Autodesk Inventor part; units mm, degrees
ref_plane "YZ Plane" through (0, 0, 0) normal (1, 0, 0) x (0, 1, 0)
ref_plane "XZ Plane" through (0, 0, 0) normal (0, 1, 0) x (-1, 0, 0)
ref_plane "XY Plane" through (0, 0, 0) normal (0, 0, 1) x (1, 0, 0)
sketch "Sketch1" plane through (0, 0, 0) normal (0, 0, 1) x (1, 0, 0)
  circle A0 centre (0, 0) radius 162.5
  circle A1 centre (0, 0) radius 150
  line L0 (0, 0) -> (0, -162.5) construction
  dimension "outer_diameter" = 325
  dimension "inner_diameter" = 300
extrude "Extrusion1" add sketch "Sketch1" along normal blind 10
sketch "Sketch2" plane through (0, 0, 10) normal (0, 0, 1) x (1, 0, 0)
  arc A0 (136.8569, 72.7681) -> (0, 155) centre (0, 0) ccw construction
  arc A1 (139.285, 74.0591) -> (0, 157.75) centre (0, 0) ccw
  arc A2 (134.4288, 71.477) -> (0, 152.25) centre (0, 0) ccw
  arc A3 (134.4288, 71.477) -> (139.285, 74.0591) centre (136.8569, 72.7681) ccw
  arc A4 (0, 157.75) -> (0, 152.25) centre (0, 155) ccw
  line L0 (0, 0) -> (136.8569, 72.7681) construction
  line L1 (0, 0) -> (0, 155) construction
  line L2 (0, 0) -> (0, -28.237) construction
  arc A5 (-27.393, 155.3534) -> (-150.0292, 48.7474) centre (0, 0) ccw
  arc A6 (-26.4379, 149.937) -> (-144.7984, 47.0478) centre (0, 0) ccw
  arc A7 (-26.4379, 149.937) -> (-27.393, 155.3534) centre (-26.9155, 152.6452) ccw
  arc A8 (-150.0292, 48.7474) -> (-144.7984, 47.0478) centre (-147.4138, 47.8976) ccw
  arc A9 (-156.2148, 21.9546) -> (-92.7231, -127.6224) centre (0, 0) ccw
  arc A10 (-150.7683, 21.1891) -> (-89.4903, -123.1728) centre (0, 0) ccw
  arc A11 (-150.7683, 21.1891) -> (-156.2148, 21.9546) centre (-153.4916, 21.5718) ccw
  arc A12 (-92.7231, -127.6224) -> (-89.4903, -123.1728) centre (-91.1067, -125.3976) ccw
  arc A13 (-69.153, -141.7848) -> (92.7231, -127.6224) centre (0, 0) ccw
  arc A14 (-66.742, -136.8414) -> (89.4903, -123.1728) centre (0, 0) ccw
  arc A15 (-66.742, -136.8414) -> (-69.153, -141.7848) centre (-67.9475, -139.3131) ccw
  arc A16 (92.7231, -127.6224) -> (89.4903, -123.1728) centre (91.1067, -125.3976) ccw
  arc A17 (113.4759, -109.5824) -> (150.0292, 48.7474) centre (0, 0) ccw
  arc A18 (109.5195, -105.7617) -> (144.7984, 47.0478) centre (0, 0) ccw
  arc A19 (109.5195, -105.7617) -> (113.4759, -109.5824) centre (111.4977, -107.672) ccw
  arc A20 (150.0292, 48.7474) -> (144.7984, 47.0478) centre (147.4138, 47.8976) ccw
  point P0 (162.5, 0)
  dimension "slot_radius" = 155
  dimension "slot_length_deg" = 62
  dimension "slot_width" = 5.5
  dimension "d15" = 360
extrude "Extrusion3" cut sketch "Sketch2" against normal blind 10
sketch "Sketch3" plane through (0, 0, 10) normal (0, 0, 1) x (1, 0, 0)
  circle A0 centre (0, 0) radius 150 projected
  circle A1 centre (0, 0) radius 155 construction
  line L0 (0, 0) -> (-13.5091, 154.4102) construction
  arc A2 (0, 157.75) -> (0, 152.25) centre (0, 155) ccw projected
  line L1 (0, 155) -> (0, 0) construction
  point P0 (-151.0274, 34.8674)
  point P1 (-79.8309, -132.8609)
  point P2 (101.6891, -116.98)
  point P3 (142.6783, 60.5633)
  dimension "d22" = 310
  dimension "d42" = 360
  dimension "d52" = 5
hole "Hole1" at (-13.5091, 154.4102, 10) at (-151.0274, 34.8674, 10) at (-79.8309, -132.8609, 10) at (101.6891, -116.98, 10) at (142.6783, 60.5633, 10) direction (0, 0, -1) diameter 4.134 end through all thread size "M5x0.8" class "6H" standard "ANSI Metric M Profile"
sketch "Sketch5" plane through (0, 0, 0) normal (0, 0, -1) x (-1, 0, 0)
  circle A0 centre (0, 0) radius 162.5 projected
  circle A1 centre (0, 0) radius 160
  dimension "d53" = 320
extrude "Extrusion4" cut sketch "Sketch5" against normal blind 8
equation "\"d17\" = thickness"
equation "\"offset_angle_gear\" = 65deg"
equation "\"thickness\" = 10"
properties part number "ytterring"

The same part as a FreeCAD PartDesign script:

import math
import FreeCAD as App
import Part
import Sketcher

doc = App.newDocument("Part")
body = doc.addObject("PartDesign::Body", "Body")

sketch1 = doc.addObject("Sketcher::SketchObject", "Sketch")
body.addObject(sketch1)
sketch1.AttachmentSupport = (doc.XY_Plane, [""])
sketch1.MapMode = "FlatFace"
sketch1.addGeometry([
    Part.Circle(App.Vector(0, 0, 0), App.Vector(0, 0, 1), 162),
    Part.Circle(App.Vector(0, 0, 0), App.Vector(0, 0, 1), 150),
], False)
sketch1.addConstraint([
    Sketcher.Constraint("Coincident", 0, 3, -1, 1),
    Sketcher.Constraint("Coincident", 1, 3, -1, 1),
    Sketcher.Constraint("Diameter", 0, 325.0),
    Sketcher.Constraint("Diameter", 1, 300.0),
])
pad1 = doc.addObject("PartDesign::Pad", "Pad")
body.addObject(pad1)
pad1.Profile = sketch1
pad1.Length = 10

sketch2 = doc.addObject("Sketcher::SketchObject", "Sketch001")
body.addObject(sketch2)
sketch2.AttachmentSupport = (doc.XY_Plane, [""])
sketch2.MapMode = "FlatFace"
sketch2.AttachmentOffset = App.Placement(App.Vector(0, 0, 10), App.Rotation())
sketch2.addGeometry([
    Part.ArcOfCircle(Part.Circle(App.Vector(136.9, 72.8, 0), App.Vector(0, 0, 1), 2.8), math.radians(-152), math.radians(28)),
    Part.ArcOfCircle(Part.Circle(App.Vector(0, 0, 0), App.Vector(0, 0, 1), 157.8), math.radians(28), math.radians(90)),
    Part.ArcOfCircle(Part.Circle(App.Vector(0, 155, 0), App.Vector(0, 0, 1), 2.8), math.radians(90), math.radians(270)),
    Part.ArcOfCircle(Part.Circle(App.Vector(0, 0, 0), App.Vector(0, 0, 1), 152.2), math.radians(28), math.radians(90)),
    Part.ArcOfCircle(Part.Circle(App.Vector(-26.9, 152.6, 0), App.Vector(0, 0, 1), 2.7), math.radians(-80), math.radians(100)),
    Part.ArcOfCircle(Part.Circle(App.Vector(0, 0, 0), App.Vector(0, 0, 1), 157.8), math.radians(100), math.radians(162)),
    Part.ArcOfCircle(Part.Circle(App.Vector(-147.4, 47.9, 0), App.Vector(0, 0, 1), 2.7), math.radians(162), math.radians(342)),
    Part.ArcOfCircle(Part.Circle(App.Vector(0, 0, 0), App.Vector(0, 0, 1), 152.3), math.radians(100), math.radians(162)),
    Part.ArcOfCircle(Part.Circle(App.Vector(-153.5, 21.6, 0), App.Vector(0, 0, 1), 2.8), math.radians(-8), math.radians(172)),
    Part.ArcOfCircle(Part.Circle(App.Vector(0, 0, 0), App.Vector(0, 0, 1), 157.7), math.radians(172), math.radians(234)),
    Part.ArcOfCircle(Part.Circle(App.Vector(-91.1, -125.4, 0), App.Vector(0, 0, 1), 2.7), math.radians(-126), math.radians(54)),
    Part.ArcOfCircle(Part.Circle(App.Vector(0, 0, 0), App.Vector(0, 0, 1), 152.2), math.radians(172), math.radians(234)),
    Part.ArcOfCircle(Part.Circle(App.Vector(-67.9, -139.3, 0), App.Vector(0, 0, 1), 2.8), math.radians(64), math.radians(244)),
    Part.ArcOfCircle(Part.Circle(App.Vector(0, 0, 0), App.Vector(0, 0, 1), 157.7), math.radians(-116), math.radians(-54)),
    Part.ArcOfCircle(Part.Circle(App.Vector(91.1, -125.4, 0), App.Vector(0, 0, 1), 2.7), math.radians(-54), math.radians(126)),
    Part.ArcOfCircle(Part.Circle(App.Vector(0, 0, 0), App.Vector(0, 0, 1), 152.2), math.radians(-116), math.radians(-54)),
    Part.ArcOfCircle(Part.Circle(App.Vector(111.5, -107.7, 0), App.Vector(0, 0, 1), 2.8), math.radians(136), math.radians(316)),
    Part.ArcOfCircle(Part.Circle(App.Vector(0, 0, 0), App.Vector(0, 0, 1), 157.7), math.radians(-44), math.radians(18)),
    Part.ArcOfCircle(Part.Circle(App.Vector(147.4, 47.9, 0), App.Vector(0, 0, 1), 2.7), math.radians(18), math.radians(198)),
    Part.ArcOfCircle(Part.Circle(App.Vector(0, 0, 0), App.Vector(0, 0, 1), 152.3), math.radians(-44), math.radians(18)),
], False)
sketch2.addConstraint([
    Sketcher.Constraint("Tangent", 0, 2, 1, 1),
    Sketcher.Constraint("Tangent", 1, 2, 2, 1),
    Sketcher.Constraint("Tangent", 2, 2, 3, 2),
    Sketcher.Constraint("Tangent", 3, 1, 0, 1),
    Sketcher.Constraint("Tangent", 4, 2, 5, 1),
    Sketcher.Constraint("Tangent", 5, 2, 6, 1),
    Sketcher.Constraint("Tangent", 6, 2, 7, 2),
    Sketcher.Constraint("Tangent", 7, 1, 4, 1),
    Sketcher.Constraint("Tangent", 8, 2, 9, 1),
    Sketcher.Constraint("Tangent", 9, 2, 10, 1),
    Sketcher.Constraint("Tangent", 10, 2, 11, 2),
    Sketcher.Constraint("Tangent", 11, 1, 8, 1),
    Sketcher.Constraint("Tangent", 12, 2, 13, 1),
    Sketcher.Constraint("Tangent", 13, 2, 14, 1),
    Sketcher.Constraint("Tangent", 14, 2, 15, 2),
    Sketcher.Constraint("Tangent", 15, 1, 12, 1),
    Sketcher.Constraint("Tangent", 16, 2, 17, 1),
    Sketcher.Constraint("Tangent", 17, 2, 18, 1),
    Sketcher.Constraint("Tangent", 18, 2, 19, 2),
    Sketcher.Constraint("Tangent", 19, 1, 16, 1),
    Sketcher.Constraint("Coincident", 1, 3, -1, 1),
    Sketcher.Constraint("Coincident", 3, 3, -1, 1),
    Sketcher.Constraint("Coincident", 5, 3, -1, 1),
    Sketcher.Constraint("Coincident", 7, 3, -1, 1),
    Sketcher.Constraint("Coincident", 9, 3, -1, 1),
    Sketcher.Constraint("Coincident", 11, 3, -1, 1),
    Sketcher.Constraint("Coincident", 13, 3, -1, 1),
    Sketcher.Constraint("Coincident", 15, 3, -1, 1),
    Sketcher.Constraint("Coincident", 17, 3, -1, 1),
    Sketcher.Constraint("Coincident", 19, 3, -1, 1),
    Sketcher.Constraint("Equal", 2, 4),
    Sketcher.Constraint("Equal", 1, 5),
    Sketcher.Constraint("Equal", 6, 8),
    Sketcher.Constraint("Equal", 5, 9),
    Sketcher.Constraint("Equal", 10, 12),
    Sketcher.Constraint("Equal", 9, 13),
    Sketcher.Constraint("Equal", 14, 16),
    Sketcher.Constraint("Equal", 13, 17),
    Sketcher.Constraint("PointOnObject", 2, 3, -2),
    Sketcher.Constraint("Horizontal", 10, 3, 14, 3),
    Sketcher.Constraint("Horizontal", 6, 3, 18, 3),
    Sketcher.Constraint("Radius", 0, 2.75),
    Sketcher.Constraint("DistanceY", -1, 1, 2, 3, 155.0),
    Sketcher.Constraint("DistanceX", 11, 1, 6, 2, 5.97),
    Sketcher.Constraint("DistanceX", 9, 2, 12, 2, 23.57),
    Sketcher.Constraint("DistanceY", 13, 2, 16, 2, 18.04),
    Sketcher.Constraint("DistanceX", -1, 1, 0, 3, 136.857),
    Sketcher.Constraint("DistanceY", 12, 3, -1, 1, 139.313),
    Sketcher.Constraint("DistanceX", 4, 2, -1, 1, 27.393),
    Sketcher.Constraint("DistanceX", 8, 2, -1, 1, 156.215),
])
pocket1 = doc.addObject("PartDesign::Pocket", "Pocket")
body.addObject(pocket1)
pocket1.Profile = sketch2
pocket1.Length = 10

sketch3 = doc.addObject("Sketcher::SketchObject", "Sketch002")
body.addObject(sketch3)
sketch3.AttachmentSupport = (doc.XY_Plane, [""])
sketch3.MapMode = "FlatFace"
sketch3.AttachmentOffset = App.Placement(App.Vector(0, 0, 10), App.Rotation())
sketch3.addGeometry([
    Part.Circle(App.Vector(-13.5, 154.4, 0), App.Vector(0, 0, 1), 2.1),
    Part.Circle(App.Vector(-151, 34.9, 0), App.Vector(0, 0, 1), 2.1),
    Part.Circle(App.Vector(-79.8, -132.9, 0), App.Vector(0, 0, 1), 2.1),
    Part.Circle(App.Vector(101.7, -117, 0), App.Vector(0, 0, 1), 2.1),
    Part.Circle(App.Vector(142.7, 60.6, 0), App.Vector(0, 0, 1), 2.1),
], False)
sketch3.addConstraint([
    Sketcher.Constraint("Equal", 0, 1),
    Sketcher.Constraint("Equal", 1, 2),
    Sketcher.Constraint("Equal", 2, 3),
    Sketcher.Constraint("Equal", 3, 4),
    Sketcher.Constraint("Diameter", 0, 4.134),
    Sketcher.Constraint("DistanceY", 3, 3, -1, 1, 116.98),
    Sketcher.Constraint("DistanceX", 2, 3, 3, 3, 181.52),
    Sketcher.Constraint("DistanceX", 0, 3, -1, 1, 13.509),
    Sketcher.Constraint("DistanceX", 2, 3, -1, 1, 79.831),
    Sketcher.Constraint("DistanceY", 2, 3, -1, 1, 132.861),
    Sketcher.Constraint("DistanceY", 2, 3, 0, 3, 287.271),
    Sketcher.Constraint("DistanceY", 4, 3, 0, 3, 93.847),
    Sketcher.Constraint("DistanceY", 1, 3, 4, 3, 25.696),
    Sketcher.Constraint("DistanceX", 1, 3, -1, 1, 151.0274),
    Sketcher.Constraint("DistanceX", -1, 1, 4, 3, 142.6783),
])
doc.recompute()
hole = doc.addObject("PartDesign::Hole", "Hole")
body.addObject(hole)
hole.Profile = sketch3
hole.ThreadType = "None"
hole.Diameter = 4.134
hole.DepthType = "ThroughAll"

sketch4 = doc.addObject("Sketcher::SketchObject", "Sketch003")
body.addObject(sketch4)
sketch4.AttachmentSupport = (doc.XY_Plane, [""])
sketch4.MapMode = "FlatFace"
sketch4.addGeometry([
    Part.Circle(App.Vector(0, 0, 0), App.Vector(0, 0, 1), 162),
    Part.Circle(App.Vector(0, 0, 0), App.Vector(0, 0, 1), 160),
], False)
sketch4.addConstraint([
    Sketcher.Constraint("Coincident", 0, 3, -1, 1),
    Sketcher.Constraint("Coincident", 1, 3, -1, 1),
    Sketcher.Constraint("Diameter", 1, 320.0),
    Sketcher.Constraint("Diameter", 0, 325.0),
])
pocket2 = doc.addObject("PartDesign::Pocket", "Pocket001")
body.addObject(pocket2)
pocket2.Profile = sketch4
pocket2.Length = 8
pocket2.Reversed = True

doc.recompute()
